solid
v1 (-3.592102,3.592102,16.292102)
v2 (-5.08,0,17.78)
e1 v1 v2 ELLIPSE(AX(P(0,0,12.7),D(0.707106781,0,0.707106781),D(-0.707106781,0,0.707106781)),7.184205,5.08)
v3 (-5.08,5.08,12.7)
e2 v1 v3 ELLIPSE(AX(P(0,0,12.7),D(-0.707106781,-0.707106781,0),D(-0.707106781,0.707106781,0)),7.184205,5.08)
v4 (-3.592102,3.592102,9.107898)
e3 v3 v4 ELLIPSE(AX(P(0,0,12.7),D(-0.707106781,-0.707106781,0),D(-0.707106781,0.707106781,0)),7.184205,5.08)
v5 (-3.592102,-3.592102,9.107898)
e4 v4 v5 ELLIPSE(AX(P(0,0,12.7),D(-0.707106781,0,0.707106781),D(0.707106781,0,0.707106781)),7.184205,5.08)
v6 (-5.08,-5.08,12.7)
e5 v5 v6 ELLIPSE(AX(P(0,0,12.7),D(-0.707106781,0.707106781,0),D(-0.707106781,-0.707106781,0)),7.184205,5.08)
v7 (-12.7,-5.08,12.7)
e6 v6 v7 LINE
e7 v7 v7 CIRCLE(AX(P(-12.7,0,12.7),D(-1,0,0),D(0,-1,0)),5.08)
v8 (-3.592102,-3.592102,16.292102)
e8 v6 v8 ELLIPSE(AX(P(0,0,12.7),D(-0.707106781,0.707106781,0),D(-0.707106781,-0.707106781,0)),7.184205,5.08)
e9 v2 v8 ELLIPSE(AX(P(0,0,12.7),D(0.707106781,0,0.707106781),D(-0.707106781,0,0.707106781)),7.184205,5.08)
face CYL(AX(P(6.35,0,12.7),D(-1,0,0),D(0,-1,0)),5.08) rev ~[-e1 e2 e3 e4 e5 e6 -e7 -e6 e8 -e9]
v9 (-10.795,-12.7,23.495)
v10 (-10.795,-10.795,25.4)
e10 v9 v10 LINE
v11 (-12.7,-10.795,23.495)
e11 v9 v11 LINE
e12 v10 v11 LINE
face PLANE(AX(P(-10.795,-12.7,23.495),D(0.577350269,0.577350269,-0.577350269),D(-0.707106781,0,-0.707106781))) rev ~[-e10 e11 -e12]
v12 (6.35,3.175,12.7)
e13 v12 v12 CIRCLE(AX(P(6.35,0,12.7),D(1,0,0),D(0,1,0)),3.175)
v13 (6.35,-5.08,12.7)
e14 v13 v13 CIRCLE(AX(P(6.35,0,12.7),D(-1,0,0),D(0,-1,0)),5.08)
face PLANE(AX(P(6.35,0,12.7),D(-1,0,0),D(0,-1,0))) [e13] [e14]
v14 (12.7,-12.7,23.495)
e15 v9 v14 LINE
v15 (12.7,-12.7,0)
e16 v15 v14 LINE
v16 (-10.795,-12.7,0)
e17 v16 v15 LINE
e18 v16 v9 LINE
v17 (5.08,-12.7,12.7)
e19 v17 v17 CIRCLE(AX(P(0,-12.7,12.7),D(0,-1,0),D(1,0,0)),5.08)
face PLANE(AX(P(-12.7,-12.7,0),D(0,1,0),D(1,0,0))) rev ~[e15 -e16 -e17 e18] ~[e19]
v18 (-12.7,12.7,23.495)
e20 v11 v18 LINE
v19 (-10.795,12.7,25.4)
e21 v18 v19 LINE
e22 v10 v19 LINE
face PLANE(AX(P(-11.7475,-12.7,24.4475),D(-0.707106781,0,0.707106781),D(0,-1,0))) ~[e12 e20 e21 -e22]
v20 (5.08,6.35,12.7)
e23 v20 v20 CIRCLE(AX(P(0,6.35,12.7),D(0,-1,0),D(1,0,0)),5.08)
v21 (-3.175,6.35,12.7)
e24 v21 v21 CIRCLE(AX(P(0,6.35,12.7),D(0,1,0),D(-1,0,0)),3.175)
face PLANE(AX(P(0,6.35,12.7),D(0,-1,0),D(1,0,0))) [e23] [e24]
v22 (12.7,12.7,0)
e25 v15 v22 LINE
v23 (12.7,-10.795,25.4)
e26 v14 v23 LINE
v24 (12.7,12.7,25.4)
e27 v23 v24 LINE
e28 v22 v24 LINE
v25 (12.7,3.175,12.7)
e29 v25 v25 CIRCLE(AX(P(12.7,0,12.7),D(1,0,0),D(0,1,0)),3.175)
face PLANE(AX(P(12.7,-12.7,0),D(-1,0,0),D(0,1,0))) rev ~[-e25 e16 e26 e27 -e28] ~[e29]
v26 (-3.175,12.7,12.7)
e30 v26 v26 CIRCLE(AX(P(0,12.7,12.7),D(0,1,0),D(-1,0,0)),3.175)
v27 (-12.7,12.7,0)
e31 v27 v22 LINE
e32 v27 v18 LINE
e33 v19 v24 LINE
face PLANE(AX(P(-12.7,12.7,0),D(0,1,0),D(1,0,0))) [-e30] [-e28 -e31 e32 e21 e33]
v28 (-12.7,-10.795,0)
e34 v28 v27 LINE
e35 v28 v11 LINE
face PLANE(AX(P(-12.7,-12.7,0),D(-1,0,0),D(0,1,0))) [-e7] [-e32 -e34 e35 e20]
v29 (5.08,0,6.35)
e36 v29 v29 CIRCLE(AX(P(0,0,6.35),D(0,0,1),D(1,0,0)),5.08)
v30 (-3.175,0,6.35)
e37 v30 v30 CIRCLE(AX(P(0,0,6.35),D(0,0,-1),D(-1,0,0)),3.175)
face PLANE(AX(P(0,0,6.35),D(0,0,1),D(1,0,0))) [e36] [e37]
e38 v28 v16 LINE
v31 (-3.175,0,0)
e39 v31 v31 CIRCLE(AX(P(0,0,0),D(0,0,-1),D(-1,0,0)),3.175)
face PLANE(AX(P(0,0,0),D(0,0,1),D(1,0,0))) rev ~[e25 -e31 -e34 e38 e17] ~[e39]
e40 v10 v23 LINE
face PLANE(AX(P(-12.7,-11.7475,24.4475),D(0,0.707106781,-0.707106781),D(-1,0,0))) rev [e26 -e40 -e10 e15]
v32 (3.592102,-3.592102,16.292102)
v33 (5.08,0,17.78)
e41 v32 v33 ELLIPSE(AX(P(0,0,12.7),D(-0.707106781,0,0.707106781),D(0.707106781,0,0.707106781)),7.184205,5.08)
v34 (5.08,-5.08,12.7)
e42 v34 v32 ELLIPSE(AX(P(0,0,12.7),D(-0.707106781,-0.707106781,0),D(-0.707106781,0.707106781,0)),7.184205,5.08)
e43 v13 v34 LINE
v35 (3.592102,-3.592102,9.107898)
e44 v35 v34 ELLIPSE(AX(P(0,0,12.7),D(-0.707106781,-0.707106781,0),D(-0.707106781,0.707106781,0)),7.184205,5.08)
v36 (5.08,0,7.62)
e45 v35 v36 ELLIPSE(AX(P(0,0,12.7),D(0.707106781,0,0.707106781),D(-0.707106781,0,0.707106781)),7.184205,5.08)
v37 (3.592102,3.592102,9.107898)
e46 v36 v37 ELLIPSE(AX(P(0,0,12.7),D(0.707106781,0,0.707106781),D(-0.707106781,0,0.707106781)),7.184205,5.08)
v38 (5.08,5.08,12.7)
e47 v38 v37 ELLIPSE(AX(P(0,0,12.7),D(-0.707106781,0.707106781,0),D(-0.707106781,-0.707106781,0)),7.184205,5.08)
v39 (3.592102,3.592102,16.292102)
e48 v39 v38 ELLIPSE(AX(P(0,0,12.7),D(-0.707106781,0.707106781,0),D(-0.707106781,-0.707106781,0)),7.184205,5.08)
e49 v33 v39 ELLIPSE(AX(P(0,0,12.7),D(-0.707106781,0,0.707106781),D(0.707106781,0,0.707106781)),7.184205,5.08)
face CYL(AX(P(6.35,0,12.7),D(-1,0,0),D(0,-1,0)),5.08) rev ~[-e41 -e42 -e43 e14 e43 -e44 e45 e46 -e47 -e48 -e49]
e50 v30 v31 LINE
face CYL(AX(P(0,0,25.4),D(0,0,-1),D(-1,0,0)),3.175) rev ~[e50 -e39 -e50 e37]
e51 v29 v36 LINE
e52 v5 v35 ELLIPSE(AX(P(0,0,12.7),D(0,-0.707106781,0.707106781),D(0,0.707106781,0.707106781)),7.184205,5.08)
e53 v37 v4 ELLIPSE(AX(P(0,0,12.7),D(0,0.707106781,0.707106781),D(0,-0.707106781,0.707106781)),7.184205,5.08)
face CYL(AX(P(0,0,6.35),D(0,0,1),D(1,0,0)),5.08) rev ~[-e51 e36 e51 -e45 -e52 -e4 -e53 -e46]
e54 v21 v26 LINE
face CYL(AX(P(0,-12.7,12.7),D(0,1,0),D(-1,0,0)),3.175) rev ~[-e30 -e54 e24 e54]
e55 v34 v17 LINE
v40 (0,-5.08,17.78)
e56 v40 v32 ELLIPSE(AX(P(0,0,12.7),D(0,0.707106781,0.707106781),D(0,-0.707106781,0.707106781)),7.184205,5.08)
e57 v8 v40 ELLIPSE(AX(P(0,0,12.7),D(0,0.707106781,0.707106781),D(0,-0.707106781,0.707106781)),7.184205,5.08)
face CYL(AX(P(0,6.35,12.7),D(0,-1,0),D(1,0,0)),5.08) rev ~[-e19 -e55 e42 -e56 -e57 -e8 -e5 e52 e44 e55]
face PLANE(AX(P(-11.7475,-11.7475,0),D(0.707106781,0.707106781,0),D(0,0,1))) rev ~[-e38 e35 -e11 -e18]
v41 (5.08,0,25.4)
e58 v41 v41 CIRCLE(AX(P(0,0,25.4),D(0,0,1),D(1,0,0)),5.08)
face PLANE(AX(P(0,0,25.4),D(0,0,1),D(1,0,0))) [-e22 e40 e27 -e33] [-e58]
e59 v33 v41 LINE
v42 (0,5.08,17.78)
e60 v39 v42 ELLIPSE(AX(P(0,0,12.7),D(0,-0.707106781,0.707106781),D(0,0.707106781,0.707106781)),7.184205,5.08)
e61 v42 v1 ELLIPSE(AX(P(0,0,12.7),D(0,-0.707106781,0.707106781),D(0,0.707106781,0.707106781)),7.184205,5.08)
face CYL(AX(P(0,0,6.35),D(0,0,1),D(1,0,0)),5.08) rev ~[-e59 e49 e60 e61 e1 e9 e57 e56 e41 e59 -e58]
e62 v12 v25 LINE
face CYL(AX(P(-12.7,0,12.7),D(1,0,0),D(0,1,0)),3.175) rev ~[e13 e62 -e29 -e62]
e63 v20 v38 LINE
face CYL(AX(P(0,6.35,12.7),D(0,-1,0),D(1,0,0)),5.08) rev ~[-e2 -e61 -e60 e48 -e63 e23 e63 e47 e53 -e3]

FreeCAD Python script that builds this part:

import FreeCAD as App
import Part
import Sketcher

V = App.Vector
Q = App.Units.Quantity


def edges_at(feature, points):
    """Names of the edges that pass closest to the given points."""
    edges = feature.Shape.Edges
    near = lambda p: min(range(len(edges)), key=lambda i: edges[i].distToShape(Part.Vertex(*p))[0])
    return sorted({f"Edge{near(p) + 1}" for p in points})


def add_polygon(sketch, points):
    """Adds a closed chain of lines whose ends are joined by coincident constraints."""
    first, n = sketch.GeometryCount, len(points)
    for a, b in zip(points, points[1:] + points[:1]):
        sketch.addGeometry(Part.LineSegment(App.Vector(*a, 0), App.Vector(*b, 0)), False)
    for i in range(n):
        sketch.addConstraint(Sketcher.Constraint("Coincident", first + i, 2, first + (i + 1) % n, 1))

doc = App.newDocument("Part")
body = doc.addObject("PartDesign::Body", "Body")

# Sketch on XY plane
sketch1 = doc.addObject("Sketcher::SketchObject", "Sketch")
body.addObject(sketch1)
sketch1.AttachmentSupport = (doc.XY_Plane, [""])
sketch1.MapMode = "FlatFace"
add_polygon(sketch1, [(-13, 13), (-13, -13), (13, -13), (13, 13)])  # lines 0-3
sketch1.addConstraint([
    Sketcher.Constraint("Vertical", 0),
    Sketcher.Constraint("Horizontal", 1),
    Sketcher.Constraint("Vertical", 2),
    Sketcher.Constraint("Horizontal", 3),
    Sketcher.Constraint("Symmetric", 0, 2, 2, 2, -1, 1),
    Sketcher.Constraint("Equal", 3, 0),
    Sketcher.Constraint("DistanceX", 1, 1, 1, 2, Q("1 in")),
])
pad1 = doc.addObject("PartDesign::Pad", "Pad")
body.addObject(pad1)
pad1.Profile = sketch1
pad1.Length = Q("1 in")

# Sketch on XY plane
sketch2 = doc.addObject("Sketcher::SketchObject", "Sketch001")
body.addObject(sketch2)
sketch2.AttachmentSupport = (doc.XY_Plane, [""])
sketch2.MapMode = "FlatFace"
sketch2.AttachmentOffset = App.Placement(V(0, 0, 1 * 25.4), App.Rotation())
sketch2.addGeometry(Part.Circle(V(0, 0, 0), V(0, 0, 1), 3.2), False)
sketch2.addConstraint([
    Sketcher.Constraint("Coincident", 0, 3, -1, 1),
    Sketcher.Constraint("Diameter", 0, Q("0.25 in")),
])
doc.recompute()
hole = doc.addObject("PartDesign::Hole", "Hole")
body.addObject(hole)
hole.Profile = sketch2
hole.ThreadType = "None"
hole.Diameter = Q("0.25 in")
hole.DepthType = "ThroughAll"
hole.HoleCutType = "Counterbore"
hole.HoleCutDiameter = Q("0.4 in")
hole.HoleCutDepth = Q("0.75 in")

# Sketch on YZ plane
sketch3 = doc.addObject("Sketcher::SketchObject", "Sketch002")
body.addObject(sketch3)
sketch3.AttachmentSupport = (doc.YZ_Plane, [""])
sketch3.MapMode = "FlatFace"
sketch3.AttachmentOffset = App.Placement(V(0, 0, -0.5 * 25.4), App.Rotation())
sketch3.addGeometry(Part.Circle(V(0, 12.7, 0), V(0, 0, 1), 3.2), False)
sketch3.addConstraint([
    Sketcher.Constraint("PointOnObject", 0, 3, -2),
    Sketcher.Constraint("Diameter", 0, Q("0.25 in")),
    Sketcher.Constraint("DistanceY", -1, 1, 0, 3, Q("0.5 in")),
])
doc.recompute()
hole2 = doc.addObject("PartDesign::Hole", "Hole001")
body.addObject(hole2)
hole2.Profile = sketch3
hole2.ThreadType = "None"
hole2.Diameter = Q("0.25 in")
hole2.DepthType = "ThroughAll"
hole2.HoleCutType = "Counterbore"
hole2.HoleCutDiameter = Q("0.4 in")
hole2.HoleCutDepth = Q("0.75 in")
hole2.Reversed = True

# Sketch on XZ plane
sketch4 = doc.addObject("Sketcher::SketchObject", "Sketch003")
body.addObject(sketch4)
sketch4.AttachmentSupport = (doc.XZ_Plane, [""])
sketch4.MapMode = "FlatFace"
sketch4.AttachmentOffset = App.Placement(V(0, 0, 0.5 * 25.4), App.Rotation())
sketch4.addGeometry(Part.Circle(V(0, 12.7, 0), V(0, 0, 1), 3.2), False)
sketch4.addConstraint([
    Sketcher.Constraint("PointOnObject", 0, 3, -2),
    Sketcher.Constraint("Diameter", 0, Q("0.25 in")),
    Sketcher.Constraint("DistanceY", -1, 1, 0, 3, Q("0.5 in")),
])
doc.recompute()
hole3 = doc.addObject("PartDesign::Hole", "Hole002")
body.addObject(hole3)
hole3.Profile = sketch4
hole3.ThreadType = "None"
hole3.Diameter = Q("0.25 in")
hole3.DepthType = "ThroughAll"
hole3.HoleCutType = "Counterbore"
hole3.HoleCutDiameter = Q("0.4 in")
hole3.HoleCutDepth = Q("0.75 in")
doc.recompute()

chamfer = doc.addObject("PartDesign::Chamfer", "Chamfer")
body.addObject(chamfer)
chamfer.Base = (hole3, edges_at(hole3, [(-12.7, 0, 25.4), (0, -12.7, 25.4), (-12.7, -12.7, 12.7)]))
chamfer.Size = Q("0.075 in")

doc.recompute()
